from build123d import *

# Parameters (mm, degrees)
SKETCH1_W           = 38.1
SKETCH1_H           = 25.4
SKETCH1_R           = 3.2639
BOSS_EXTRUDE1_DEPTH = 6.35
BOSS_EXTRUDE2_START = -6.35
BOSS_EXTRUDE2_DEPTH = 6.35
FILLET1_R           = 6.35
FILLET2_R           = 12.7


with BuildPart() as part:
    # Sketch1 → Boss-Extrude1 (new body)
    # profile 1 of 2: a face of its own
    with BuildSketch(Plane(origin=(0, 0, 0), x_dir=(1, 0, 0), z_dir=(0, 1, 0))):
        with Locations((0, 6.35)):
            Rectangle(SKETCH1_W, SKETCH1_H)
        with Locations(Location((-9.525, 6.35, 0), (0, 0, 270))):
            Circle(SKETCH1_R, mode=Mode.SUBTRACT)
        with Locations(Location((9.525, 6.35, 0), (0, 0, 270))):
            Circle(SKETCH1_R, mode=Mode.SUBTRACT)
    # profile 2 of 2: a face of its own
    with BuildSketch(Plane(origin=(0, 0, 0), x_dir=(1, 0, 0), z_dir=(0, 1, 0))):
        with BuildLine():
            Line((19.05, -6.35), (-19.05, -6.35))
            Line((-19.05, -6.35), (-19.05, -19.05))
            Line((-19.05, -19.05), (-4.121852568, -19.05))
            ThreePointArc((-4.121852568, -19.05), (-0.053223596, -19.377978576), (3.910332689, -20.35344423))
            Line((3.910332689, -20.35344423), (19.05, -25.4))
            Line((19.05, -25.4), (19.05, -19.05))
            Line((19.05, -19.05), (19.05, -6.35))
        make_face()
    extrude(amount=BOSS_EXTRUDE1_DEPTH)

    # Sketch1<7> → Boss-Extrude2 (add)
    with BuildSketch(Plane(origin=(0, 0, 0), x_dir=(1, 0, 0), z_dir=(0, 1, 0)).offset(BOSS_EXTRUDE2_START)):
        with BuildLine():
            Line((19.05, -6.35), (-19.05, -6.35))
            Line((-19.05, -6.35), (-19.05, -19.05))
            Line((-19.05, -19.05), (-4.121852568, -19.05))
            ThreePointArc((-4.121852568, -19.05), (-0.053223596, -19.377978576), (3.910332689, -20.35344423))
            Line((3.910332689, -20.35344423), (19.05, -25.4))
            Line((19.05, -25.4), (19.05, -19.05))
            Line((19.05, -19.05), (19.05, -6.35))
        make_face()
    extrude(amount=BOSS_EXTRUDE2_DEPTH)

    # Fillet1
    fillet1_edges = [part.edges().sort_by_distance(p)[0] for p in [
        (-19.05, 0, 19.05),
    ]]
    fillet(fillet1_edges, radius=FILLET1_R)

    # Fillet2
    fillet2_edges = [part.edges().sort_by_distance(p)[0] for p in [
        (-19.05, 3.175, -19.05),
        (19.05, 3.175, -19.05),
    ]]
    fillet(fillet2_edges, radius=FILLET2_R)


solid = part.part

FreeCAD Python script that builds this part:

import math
import FreeCAD as App
import Part
import Sketcher
from FreeCAD import Vector
Q = App.Units.Quantity


def edges_at(feature, points):
    """Names of the edges that pass closest to the given points."""
    edges = feature.Shape.Edges
    near = lambda p: min(range(len(edges)), key=lambda i: edges[i].distToShape(Part.Vertex(*p))[0])
    return sorted({f"Edge{near(p) + 1}" for p in points})

doc = App.newDocument("Part")
body = doc.addObject("PartDesign::Body", "Body")

sketch1 = body.newObject("Sketcher::SketchObject", "Sketch")
sketch1.AttachmentSupport = (doc.getObject("XZ_Plane"), [""])
sketch1.MapMode = "FlatFace"
sketch1.addGeometry([
    Part.LineSegment(Vector(-19.1, -19.1, 0), Vector(-19.1, 19.1, 0)),
    Part.LineSegment(Vector(-19.1, 19.1, 0), Vector(-4.1, 19.1, 0)),
    Part.ArcOfCircle(Part.Circle(Vector(-4.1, 44.4, 0), Vector(0, 0, 1), 25.4), math.radians(-90), math.radians(-71.57)),
    Part.LineSegment(Vector(3.9, 20.4, 0), Vector(19.1, 25.4, 0)),
    Part.LineSegment(Vector(19.1, 25.4, 0), Vector(19.1, -19.1, 0)),
    Part.LineSegment(Vector(19.1, -19.1, 0), Vector(-19.1, -19.1, 0)),
    Part.Circle(Vector(-9.5, -6.3, 0), Vector(0, 0, 1), 3.3),
    Part.Circle(Vector(9.5, -6.3, 0), Vector(0, 0, 1), 3.3),
], False)
sketch1.addConstraint([
    Sketcher.Constraint("Coincident", 0, 2, 1, 1),
    Sketcher.Constraint("Tangent", 1, 2, 2, 1),
    Sketcher.Constraint("Tangent", 2, 2, 3, 1),
    Sketcher.Constraint("Coincident", 3, 2, 4, 1),
    Sketcher.Constraint("Coincident", 4, 2, 5, 1),
    Sketcher.Constraint("Coincident", 5, 2, 0, 1),
    Sketcher.Constraint("Vertical", 0),
    Sketcher.Constraint("Horizontal", 1),
    Sketcher.Constraint("Vertical", 4),
    Sketcher.Constraint("Horizontal", 5),
    Sketcher.Constraint("Equal", 6, 7),
    Sketcher.Constraint("Symmetric", 0, 2, 4, 2, -1, 1),
    Sketcher.Constraint("Symmetric", 6, 3, 7, 3, -2),
    Sketcher.Constraint("Equal", 5, 0),
    Sketcher.Constraint("Radius", 2, Q("1 in")),
    Sketcher.Constraint("Diameter", 6, Q("0.257 in")),
    Sketcher.Constraint("DistanceX", 5, 2, 5, 1, Q("1.5 in")),
    Sketcher.Constraint("DistanceY", -1, 1, 3, 2, Q("1 in")),
    Sketcher.Constraint("DistanceY", 6, 3, 2, 3, Q("2 in")),
    Sketcher.Constraint("DistanceX", 6, 3, 7, 3, Q("0.75 in")),
    Sketcher.Constraint("Distance", 3, Q("15.958611 mm")),
])
pad1 = body.newObject("PartDesign::Pad", "Pad")
pad1.Profile = sketch1
pad1.Length = Q("0.25 in")
pad1.Reversed = True

sketch2 = body.newObject("Sketcher::SketchObject", "Sketch001")
sketch2.AttachmentSupport = (doc.getObject("XZ_Plane"), [""])
sketch2.MapMode = "FlatFace"
sketch2.AttachmentOffset = App.Placement(Vector(0, 0, 0.25 * 25.4), App.Rotation())
sketch2.addGeometry([
    Part.LineSegment(Vector(19, 6, 0), Vector(-19, 6, 0)),
    Part.LineSegment(Vector(-19, 6, 0), Vector(-19, 19, 0)),
    Part.LineSegment(Vector(-19, 19, 0), Vector(-4, 19, 0)),
    Part.ArcOfCircle(Part.Circle(Vector(-4, 44, 0), Vector(0, 0, 1), 25), math.radians(-90), math.radians(-71.57)),
    Part.LineSegment(Vector(4, 20, 0), Vector(19, 25, 0)),
    Part.LineSegment(Vector(19, 25, 0), Vector(19, 6, 0)),
], False)
sketch2.addConstraint([
    Sketcher.Constraint("Coincident", 0, 2, 1, 1),
    Sketcher.Constraint("Coincident", 1, 2, 2, 1),
    Sketcher.Constraint("Tangent", 2, 2, 3, 1),
    Sketcher.Constraint("Tangent", 3, 2, 4, 1),
    Sketcher.Constraint("Coincident", 4, 2, 5, 1),
    Sketcher.Constraint("Coincident", 5, 2, 0, 1),
    Sketcher.Constraint("Horizontal", 0),
    Sketcher.Constraint("Vertical", 1),
    Sketcher.Constraint("Horizontal", 2),
    Sketcher.Constraint("Vertical", 5),
    Sketcher.Constraint("Radius", 3, Q("1 in")),
    Sketcher.Constraint("DistanceX", 0, 2, 0, 1, Q("1.5 in")),
    Sketcher.Constraint("DistanceY", 1, 1, 1, 2, Q("0.5 in")),
    Sketcher.Constraint("DistanceY", -1, 1, 4, 2, Q("1 in")),
    Sketcher.Constraint("DistanceY", 5, 2, 5, 1, Q("0.75 in")),
    Sketcher.Constraint("DistanceX", 0, 2, -1, 1, Q("0.75 in")),
    Sketcher.Constraint("Distance", 4, Q("15.958611 mm")),
])
pad2 = body.newObject("PartDesign::Pad", "Pad001")
pad2.Profile = sketch2
pad2.Length = Q("0.25 in")
pad2.Reversed = True
doc.recompute()

fillet = body.newObject("PartDesign::Fillet", "Fillet")
fillet.Base = (pad2, edges_at(pad2, [(-19.05, 0, 19.05)]))
fillet.Radius = Q("0.25 in")
doc.recompute()

fillet2 = body.newObject("PartDesign::Fillet", "Fillet001")
fillet2.Base = (fillet, edges_at(fillet, [(-19.05, 3.175, -19.05), (19.05, 3.175, -19.05)]))
fillet2.Radius = Q("0.5 in")

doc.recompute()
